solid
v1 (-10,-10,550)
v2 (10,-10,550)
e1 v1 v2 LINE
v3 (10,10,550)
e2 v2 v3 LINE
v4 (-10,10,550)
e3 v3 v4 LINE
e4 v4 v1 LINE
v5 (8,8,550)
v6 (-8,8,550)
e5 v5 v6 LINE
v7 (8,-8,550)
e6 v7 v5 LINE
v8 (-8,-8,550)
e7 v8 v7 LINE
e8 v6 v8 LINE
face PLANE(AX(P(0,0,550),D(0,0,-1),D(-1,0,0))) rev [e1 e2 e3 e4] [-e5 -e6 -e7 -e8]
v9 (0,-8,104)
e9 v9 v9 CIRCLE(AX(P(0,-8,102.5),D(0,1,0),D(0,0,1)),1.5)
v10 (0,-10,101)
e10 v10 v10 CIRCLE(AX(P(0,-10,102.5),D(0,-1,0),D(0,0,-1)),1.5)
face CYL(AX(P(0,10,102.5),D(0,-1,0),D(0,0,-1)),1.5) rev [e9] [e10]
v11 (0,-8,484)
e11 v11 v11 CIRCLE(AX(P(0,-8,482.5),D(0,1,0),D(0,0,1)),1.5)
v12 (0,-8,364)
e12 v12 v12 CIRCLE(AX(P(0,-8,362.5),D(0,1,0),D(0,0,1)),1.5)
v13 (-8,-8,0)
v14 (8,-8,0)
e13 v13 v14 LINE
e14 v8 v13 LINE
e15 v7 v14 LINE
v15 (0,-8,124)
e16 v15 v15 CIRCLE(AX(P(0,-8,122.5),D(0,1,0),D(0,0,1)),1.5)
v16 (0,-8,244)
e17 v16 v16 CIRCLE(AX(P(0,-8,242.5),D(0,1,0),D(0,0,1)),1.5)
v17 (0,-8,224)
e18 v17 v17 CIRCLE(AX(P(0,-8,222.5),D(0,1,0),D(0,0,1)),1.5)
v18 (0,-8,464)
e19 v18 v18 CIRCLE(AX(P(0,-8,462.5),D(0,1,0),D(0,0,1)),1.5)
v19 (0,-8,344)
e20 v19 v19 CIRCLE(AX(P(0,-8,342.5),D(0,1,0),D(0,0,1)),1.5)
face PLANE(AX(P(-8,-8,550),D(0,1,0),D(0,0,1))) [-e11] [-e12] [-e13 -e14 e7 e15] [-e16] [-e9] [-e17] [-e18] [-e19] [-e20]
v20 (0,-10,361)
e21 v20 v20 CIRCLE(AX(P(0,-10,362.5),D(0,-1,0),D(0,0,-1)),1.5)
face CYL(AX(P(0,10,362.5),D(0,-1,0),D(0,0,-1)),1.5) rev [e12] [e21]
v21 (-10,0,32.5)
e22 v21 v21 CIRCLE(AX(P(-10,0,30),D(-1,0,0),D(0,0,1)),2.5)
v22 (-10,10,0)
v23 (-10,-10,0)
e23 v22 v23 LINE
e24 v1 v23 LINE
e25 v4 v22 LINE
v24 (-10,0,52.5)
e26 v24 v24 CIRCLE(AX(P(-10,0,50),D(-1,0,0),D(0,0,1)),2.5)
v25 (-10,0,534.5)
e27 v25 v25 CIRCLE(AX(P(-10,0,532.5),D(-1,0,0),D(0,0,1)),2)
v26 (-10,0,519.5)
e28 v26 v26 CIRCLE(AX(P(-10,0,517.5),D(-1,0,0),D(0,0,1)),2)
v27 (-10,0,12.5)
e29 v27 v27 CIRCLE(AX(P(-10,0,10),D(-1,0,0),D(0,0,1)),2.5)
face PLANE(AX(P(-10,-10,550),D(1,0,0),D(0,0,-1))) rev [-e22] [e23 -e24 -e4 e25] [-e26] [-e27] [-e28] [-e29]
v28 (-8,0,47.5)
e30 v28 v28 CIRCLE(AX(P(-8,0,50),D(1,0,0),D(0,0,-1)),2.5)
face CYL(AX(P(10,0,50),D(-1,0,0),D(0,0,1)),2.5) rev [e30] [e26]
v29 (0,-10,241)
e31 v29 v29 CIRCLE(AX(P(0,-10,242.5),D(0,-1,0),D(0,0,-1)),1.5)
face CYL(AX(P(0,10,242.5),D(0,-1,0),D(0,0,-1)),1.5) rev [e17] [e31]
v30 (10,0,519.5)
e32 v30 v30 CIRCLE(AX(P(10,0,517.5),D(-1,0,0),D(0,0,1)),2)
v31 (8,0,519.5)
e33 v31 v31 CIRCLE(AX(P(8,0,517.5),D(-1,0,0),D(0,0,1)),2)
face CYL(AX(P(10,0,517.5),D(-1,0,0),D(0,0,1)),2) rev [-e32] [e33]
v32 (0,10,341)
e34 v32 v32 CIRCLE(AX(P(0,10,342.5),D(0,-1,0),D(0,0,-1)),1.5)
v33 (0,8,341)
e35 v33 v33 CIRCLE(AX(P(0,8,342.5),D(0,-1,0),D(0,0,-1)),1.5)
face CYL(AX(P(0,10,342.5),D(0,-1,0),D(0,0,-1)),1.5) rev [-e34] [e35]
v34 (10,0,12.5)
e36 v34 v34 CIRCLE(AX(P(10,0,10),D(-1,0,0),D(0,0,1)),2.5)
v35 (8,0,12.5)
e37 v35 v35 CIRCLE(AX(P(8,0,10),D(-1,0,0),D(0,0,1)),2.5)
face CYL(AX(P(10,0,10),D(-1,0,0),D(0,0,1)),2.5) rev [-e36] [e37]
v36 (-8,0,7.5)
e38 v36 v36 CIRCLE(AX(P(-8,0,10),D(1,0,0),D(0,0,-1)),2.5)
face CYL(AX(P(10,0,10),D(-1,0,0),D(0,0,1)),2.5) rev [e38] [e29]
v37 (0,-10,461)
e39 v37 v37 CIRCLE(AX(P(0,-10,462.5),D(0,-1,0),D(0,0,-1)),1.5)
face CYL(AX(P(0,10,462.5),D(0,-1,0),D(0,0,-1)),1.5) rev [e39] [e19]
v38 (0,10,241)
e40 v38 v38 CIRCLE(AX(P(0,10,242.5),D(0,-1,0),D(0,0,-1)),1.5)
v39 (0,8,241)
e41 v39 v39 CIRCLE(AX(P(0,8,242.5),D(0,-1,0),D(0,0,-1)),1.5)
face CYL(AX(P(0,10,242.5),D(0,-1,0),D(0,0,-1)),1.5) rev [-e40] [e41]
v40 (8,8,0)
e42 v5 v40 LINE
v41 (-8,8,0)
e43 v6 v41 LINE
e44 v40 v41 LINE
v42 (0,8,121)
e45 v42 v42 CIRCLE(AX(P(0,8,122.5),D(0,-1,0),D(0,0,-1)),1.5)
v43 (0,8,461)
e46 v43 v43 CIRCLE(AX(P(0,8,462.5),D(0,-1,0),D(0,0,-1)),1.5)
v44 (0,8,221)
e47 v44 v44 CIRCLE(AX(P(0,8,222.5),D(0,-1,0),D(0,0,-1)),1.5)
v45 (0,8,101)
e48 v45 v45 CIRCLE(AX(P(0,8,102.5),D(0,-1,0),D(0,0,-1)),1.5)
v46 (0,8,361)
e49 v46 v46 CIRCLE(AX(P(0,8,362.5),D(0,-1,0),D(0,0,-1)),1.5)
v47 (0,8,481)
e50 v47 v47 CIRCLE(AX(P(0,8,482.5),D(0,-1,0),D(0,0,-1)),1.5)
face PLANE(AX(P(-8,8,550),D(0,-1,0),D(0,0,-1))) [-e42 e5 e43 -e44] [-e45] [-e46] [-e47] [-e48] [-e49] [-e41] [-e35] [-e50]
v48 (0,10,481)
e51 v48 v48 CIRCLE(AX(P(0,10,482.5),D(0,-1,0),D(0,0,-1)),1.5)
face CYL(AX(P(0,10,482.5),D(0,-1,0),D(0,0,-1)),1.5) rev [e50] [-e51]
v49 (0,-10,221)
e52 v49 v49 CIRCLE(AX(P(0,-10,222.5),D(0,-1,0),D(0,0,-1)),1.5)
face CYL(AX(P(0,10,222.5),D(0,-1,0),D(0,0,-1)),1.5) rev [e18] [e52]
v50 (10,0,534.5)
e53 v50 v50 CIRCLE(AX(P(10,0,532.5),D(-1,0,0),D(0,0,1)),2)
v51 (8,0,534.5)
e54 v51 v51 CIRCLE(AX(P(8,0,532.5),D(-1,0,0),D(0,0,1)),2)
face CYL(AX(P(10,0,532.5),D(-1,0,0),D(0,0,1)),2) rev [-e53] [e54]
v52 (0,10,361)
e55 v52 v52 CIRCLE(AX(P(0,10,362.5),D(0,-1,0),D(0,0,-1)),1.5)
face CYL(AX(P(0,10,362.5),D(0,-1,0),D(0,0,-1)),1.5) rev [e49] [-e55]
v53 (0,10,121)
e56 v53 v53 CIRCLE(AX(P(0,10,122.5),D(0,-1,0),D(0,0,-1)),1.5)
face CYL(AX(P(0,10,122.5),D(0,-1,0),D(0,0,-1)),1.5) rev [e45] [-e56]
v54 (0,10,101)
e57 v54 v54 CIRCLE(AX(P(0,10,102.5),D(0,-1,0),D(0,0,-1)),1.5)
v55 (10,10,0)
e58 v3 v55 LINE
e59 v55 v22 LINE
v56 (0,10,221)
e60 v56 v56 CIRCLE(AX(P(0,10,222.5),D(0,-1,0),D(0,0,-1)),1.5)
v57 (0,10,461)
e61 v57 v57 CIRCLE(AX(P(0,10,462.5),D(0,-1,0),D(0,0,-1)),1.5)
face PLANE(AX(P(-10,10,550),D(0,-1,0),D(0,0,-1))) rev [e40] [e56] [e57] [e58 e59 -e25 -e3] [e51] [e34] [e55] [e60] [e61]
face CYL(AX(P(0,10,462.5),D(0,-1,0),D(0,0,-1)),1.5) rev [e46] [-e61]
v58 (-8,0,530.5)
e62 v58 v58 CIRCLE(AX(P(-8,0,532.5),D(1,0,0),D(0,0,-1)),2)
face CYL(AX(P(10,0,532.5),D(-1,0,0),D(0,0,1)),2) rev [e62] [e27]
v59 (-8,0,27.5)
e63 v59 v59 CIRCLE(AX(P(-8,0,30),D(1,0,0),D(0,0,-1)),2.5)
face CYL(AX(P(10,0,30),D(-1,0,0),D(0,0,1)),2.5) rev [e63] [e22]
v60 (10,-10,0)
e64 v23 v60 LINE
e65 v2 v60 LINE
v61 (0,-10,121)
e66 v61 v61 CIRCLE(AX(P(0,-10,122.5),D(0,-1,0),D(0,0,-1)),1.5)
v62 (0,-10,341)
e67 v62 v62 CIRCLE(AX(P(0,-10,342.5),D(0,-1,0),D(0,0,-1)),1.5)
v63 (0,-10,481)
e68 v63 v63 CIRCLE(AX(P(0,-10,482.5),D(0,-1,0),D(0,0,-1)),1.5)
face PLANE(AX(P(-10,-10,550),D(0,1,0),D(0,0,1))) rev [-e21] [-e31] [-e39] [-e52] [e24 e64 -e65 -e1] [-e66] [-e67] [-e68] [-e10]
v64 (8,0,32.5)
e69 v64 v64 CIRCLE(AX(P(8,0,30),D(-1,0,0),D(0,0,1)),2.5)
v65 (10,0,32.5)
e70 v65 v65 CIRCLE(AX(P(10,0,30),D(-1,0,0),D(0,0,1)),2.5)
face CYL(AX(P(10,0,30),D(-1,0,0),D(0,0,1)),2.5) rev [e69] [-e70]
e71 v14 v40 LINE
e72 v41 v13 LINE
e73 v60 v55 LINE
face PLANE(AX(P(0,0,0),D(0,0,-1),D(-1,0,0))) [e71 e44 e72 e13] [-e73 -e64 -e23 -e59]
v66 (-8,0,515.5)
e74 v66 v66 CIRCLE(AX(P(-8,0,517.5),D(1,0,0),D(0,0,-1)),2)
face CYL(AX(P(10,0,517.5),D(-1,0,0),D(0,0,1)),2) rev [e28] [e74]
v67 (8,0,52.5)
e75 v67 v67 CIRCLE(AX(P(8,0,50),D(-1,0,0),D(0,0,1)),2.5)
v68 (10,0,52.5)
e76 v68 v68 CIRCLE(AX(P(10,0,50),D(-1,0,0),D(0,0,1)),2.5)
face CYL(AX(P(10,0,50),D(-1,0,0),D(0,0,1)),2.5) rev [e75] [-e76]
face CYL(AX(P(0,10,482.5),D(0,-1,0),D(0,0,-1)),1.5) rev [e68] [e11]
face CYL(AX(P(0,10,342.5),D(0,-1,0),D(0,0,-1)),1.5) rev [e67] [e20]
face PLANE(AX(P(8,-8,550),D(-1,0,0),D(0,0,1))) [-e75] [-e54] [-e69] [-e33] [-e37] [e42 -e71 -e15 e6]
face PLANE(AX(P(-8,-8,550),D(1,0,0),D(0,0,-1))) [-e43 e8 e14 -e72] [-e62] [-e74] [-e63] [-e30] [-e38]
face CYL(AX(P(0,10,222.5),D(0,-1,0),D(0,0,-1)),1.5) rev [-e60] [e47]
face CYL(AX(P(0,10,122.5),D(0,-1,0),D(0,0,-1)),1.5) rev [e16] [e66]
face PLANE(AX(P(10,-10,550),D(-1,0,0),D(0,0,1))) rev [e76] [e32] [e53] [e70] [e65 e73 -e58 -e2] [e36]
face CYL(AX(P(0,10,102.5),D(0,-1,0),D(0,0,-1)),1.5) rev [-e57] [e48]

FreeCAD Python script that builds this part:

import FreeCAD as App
import Part
import Sketcher
Q = App.Units.Quantity

doc = App.newDocument("Part")
params = doc.addObject("Spreadsheet::Sheet", "Params")
for row, (alias, value) in enumerate([
    ("sketch1_width", "20 mm"),
    ("sketch1_width2", "16 mm"),
    ("pad1_length", "550 mm"),
    ("sketch2_diameter", "4 mm"),
    ("pocket1_length", "20 mm"),
    ("sketch3_diameter", "5 mm"),
    ("pocket2_length", "20 mm"),
    ("sketch4_diameter", "3 mm"),
    ("pocket3_length", "20 mm"),
], start=1):
    params.set(f"A{row}", alias)
    params.set(f"B{row}", "=" + value)
    params.setAlias(f"B{row}", alias)

body = doc.addObject("PartDesign::Body", "Body")

sketch1 = body.newObject("Sketcher::SketchObject", "Sketch")
sketch1.AttachmentSupport = (doc.getObject("XY_Plane"), [""])
sketch1.MapMode = "FlatFace"
sketch1.addGeometry([
    Part.LineSegment(App.Vector(-10, 10, 0), App.Vector(-10, -10, 0)),
    Part.LineSegment(App.Vector(-10, -10, 0), App.Vector(10, -10, 0)),
    Part.LineSegment(App.Vector(10, -10, 0), App.Vector(10, 10, 0)),
    Part.LineSegment(App.Vector(10, 10, 0), App.Vector(-10, 10, 0)),
    Part.LineSegment(App.Vector(8, -8, 0), App.Vector(-8, -8, 0)),
    Part.LineSegment(App.Vector(-8, -8, 0), App.Vector(-8, 8, 0)),
    Part.LineSegment(App.Vector(-8, 8, 0), App.Vector(8, 8, 0)),
    Part.LineSegment(App.Vector(8, 8, 0), App.Vector(8, -8, 0)),
], False)
sketch1.addConstraint([
    Sketcher.Constraint("Coincident", 0, 2, 1, 1),
    Sketcher.Constraint("Coincident", 1, 2, 2, 1),
    Sketcher.Constraint("Coincident", 2, 2, 3, 1),
    Sketcher.Constraint("Coincident", 3, 2, 0, 1),
    Sketcher.Constraint("Coincident", 4, 2, 5, 1),
    Sketcher.Constraint("Coincident", 5, 2, 6, 1),
    Sketcher.Constraint("Coincident", 6, 2, 7, 1),
    Sketcher.Constraint("Coincident", 7, 2, 4, 1),
    Sketcher.Constraint("Vertical", 0),
    Sketcher.Constraint("Horizontal", 1),
    Sketcher.Constraint("Vertical", 2),
    Sketcher.Constraint("Horizontal", 3),
    Sketcher.Constraint("Horizontal", 4),
    Sketcher.Constraint("Vertical", 5),
    Sketcher.Constraint("Horizontal", 6),
    Sketcher.Constraint("Vertical", 7),
    Sketcher.Constraint("Symmetric", 0, 2, 2, 2, -1, 1),
    Sketcher.Constraint("Symmetric", 4, 2, 6, 2, -1, 1),
    Sketcher.Constraint("Equal", 3, 0),
    Sketcher.Constraint("Equal", 6, 5),
    Sketcher.Constraint("DistanceX", 1, 1, 1, 2, Q("20 mm")),
    Sketcher.Constraint("DistanceX", 4, 2, 4, 1, Q("16 mm")),
])
sketch1.setExpression("Constraints[20]", "Params.sketch1_width")
sketch1.setExpression("Constraints[21]", "Params.sketch1_width2")
pad1 = body.newObject("PartDesign::Pad", "Pad")
pad1.Profile = sketch1
pad1.setExpression("Length", "Params.pad1_length")

sketch2 = body.newObject("Sketcher::SketchObject", "Sketch001")
sketch2.AttachmentSupport = (doc.getObject("YZ_Plane"), [""])
sketch2.MapMode = "FlatFace"
sketch2.AttachmentOffset = App.Placement(App.Vector(0, 0, -10), App.Rotation())
sketch2.addGeometry([
    Part.Circle(App.Vector(0, 532.5, 0), App.Vector(0, 0, 1), 2),
    Part.Circle(App.Vector(0, 517.5, 0), App.Vector(0, 0, 1), 2),
], False)
sketch2.addConstraint([
    Sketcher.Constraint("Equal", 0, 1),
    Sketcher.Constraint("PointOnObject", 0, 3, -2),
    Sketcher.Constraint("PointOnObject", 1, 3, -2),
    Sketcher.Constraint("Diameter", 0, Q("4 mm")),
    Sketcher.Constraint("DistanceY", 1, 3, 0, 3, Q("15 mm")),
    Sketcher.Constraint("DistanceY", -1, 1, 0, 3, Q("532.5 mm")),
])
sketch2.setExpression("Constraints[3]", "Params.sketch2_diameter")
pocket1 = body.newObject("PartDesign::Pocket", "Pocket")
pocket1.Profile = sketch2
pocket1.setExpression("Length", "Params.pocket1_length")
pocket1.Reversed = True

sketch3 = body.newObject("Sketcher::SketchObject", "Sketch002")
sketch3.AttachmentSupport = (doc.getObject("YZ_Plane"), [""])
sketch3.MapMode = "FlatFace"
sketch3.AttachmentOffset = App.Placement(App.Vector(0, 0, -10), App.Rotation())
sketch3.addGeometry([
    Part.Circle(App.Vector(0, 10, 0), App.Vector(0, 0, 1), 2.5),
    Part.Circle(App.Vector(0, 30, 0), App.Vector(0, 0, 1), 2.5),
    Part.Circle(App.Vector(0, 50, 0), App.Vector(0, 0, 1), 2.5),
], False)
sketch3.addConstraint([
    Sketcher.Constraint("Equal", 0, 1),
    Sketcher.Constraint("Equal", 1, 2),
    Sketcher.Constraint("PointOnObject", 0, 3, -2),
    Sketcher.Constraint("PointOnObject", 1, 3, -2),
    Sketcher.Constraint("PointOnObject", 2, 3, -2),
    Sketcher.Constraint("Diameter", 0, Q("5 mm")),
    Sketcher.Constraint("DistanceY", -1, 1, 0, 3, Q("10 mm")),
    Sketcher.Constraint("DistanceY", -1, 1, 1, 3, Q("30 mm")),
    Sketcher.Constraint("DistanceY", -1, 1, 2, 3, Q("50 mm")),
])
sketch3.setExpression("Constraints[5]", "Params.sketch3_diameter")
pocket2 = body.newObject("PartDesign::Pocket", "Pocket001")
pocket2.Profile = sketch3
pocket2.setExpression("Length", "Params.pocket2_length")
pocket2.Reversed = True

sketch4 = body.newObject("Sketcher::SketchObject", "Sketch003")
sketch4.AttachmentSupport = (doc.getObject("XZ_Plane"), [""])
sketch4.MapMode = "FlatFace"
sketch4.AttachmentOffset = App.Placement(App.Vector(0, 0, 10), App.Rotation())
sketch4.addGeometry([
    Part.Circle(App.Vector(0, 482.5, 0), App.Vector(0, 0, 1), 1.5),
    Part.Circle(App.Vector(0, 462.5, 0), App.Vector(0, 0, 1), 1.5),
    Part.Circle(App.Vector(0, 362.5, 0), App.Vector(0, 0, 1), 1.5),
    Part.Circle(App.Vector(0, 342.5, 0), App.Vector(0, 0, 1), 1.5),
    Part.Circle(App.Vector(0, 242.5, 0), App.Vector(0, 0, 1), 1.5),
    Part.Circle(App.Vector(0, 222.5, 0), App.Vector(0, 0, 1), 1.5),
    Part.Circle(App.Vector(0, 122.5, 0), App.Vector(0, 0, 1), 1.5),
    Part.Circle(App.Vector(0, 102.5, 0), App.Vector(0, 0, 1), 1.5),
], False)
sketch4.addConstraint([
    Sketcher.Constraint("Equal", 0, 1),
    Sketcher.Constraint("Equal", 1, 2),
    Sketcher.Constraint("Equal", 2, 3),
    Sketcher.Constraint("Equal", 3, 4),
    Sketcher.Constraint("Equal", 4, 5),
    Sketcher.Constraint("Equal", 5, 6),
    Sketcher.Constraint("Equal", 6, 7),
    Sketcher.Constraint("PointOnObject", 0, 3, -2),
    Sketcher.Constraint("PointOnObject", 1, 3, -2),
    Sketcher.Constraint("PointOnObject", 2, 3, -2),
    Sketcher.Constraint("PointOnObject", 3, 3, -2),
    Sketcher.Constraint("PointOnObject", 4, 3, -2),
    Sketcher.Constraint("PointOnObject", 5, 3, -2),
    Sketcher.Constraint("PointOnObject", 6, 3, -2),
    Sketcher.Constraint("PointOnObject", 7, 3, -2),
    Sketcher.Constraint("Diameter", 0, Q("3 mm")),
    Sketcher.Constraint("DistanceY", 1, 3, 0, 3, Q("20 mm")),
    Sketcher.Constraint("DistanceY", 2, 3, 1, 3, Q("100 mm")),
    Sketcher.Constraint("DistanceY", 3, 3, 2, 3, Q("20 mm")),
    Sketcher.Constraint("DistanceY", 4, 3, 3, 3, Q("100 mm")),
    Sketcher.Constraint("DistanceY", 5, 3, 4, 3, Q("20 mm")),
    Sketcher.Constraint("DistanceY", 6, 3, 5, 3, Q("100 mm")),
    Sketcher.Constraint("DistanceY", 7, 3, 6, 3, Q("20 mm")),
    Sketcher.Constraint("DistanceY", -1, 1, 0, 3, Q("482.5 mm")),
])
sketch4.setExpression("Constraints[15]", "Params.sketch4_diameter")
pocket3 = body.newObject("PartDesign::Pocket", "Pocket002")
pocket3.Profile = sketch4
pocket3.setExpression("Length", "Params.pocket3_length")

doc.recompute()
